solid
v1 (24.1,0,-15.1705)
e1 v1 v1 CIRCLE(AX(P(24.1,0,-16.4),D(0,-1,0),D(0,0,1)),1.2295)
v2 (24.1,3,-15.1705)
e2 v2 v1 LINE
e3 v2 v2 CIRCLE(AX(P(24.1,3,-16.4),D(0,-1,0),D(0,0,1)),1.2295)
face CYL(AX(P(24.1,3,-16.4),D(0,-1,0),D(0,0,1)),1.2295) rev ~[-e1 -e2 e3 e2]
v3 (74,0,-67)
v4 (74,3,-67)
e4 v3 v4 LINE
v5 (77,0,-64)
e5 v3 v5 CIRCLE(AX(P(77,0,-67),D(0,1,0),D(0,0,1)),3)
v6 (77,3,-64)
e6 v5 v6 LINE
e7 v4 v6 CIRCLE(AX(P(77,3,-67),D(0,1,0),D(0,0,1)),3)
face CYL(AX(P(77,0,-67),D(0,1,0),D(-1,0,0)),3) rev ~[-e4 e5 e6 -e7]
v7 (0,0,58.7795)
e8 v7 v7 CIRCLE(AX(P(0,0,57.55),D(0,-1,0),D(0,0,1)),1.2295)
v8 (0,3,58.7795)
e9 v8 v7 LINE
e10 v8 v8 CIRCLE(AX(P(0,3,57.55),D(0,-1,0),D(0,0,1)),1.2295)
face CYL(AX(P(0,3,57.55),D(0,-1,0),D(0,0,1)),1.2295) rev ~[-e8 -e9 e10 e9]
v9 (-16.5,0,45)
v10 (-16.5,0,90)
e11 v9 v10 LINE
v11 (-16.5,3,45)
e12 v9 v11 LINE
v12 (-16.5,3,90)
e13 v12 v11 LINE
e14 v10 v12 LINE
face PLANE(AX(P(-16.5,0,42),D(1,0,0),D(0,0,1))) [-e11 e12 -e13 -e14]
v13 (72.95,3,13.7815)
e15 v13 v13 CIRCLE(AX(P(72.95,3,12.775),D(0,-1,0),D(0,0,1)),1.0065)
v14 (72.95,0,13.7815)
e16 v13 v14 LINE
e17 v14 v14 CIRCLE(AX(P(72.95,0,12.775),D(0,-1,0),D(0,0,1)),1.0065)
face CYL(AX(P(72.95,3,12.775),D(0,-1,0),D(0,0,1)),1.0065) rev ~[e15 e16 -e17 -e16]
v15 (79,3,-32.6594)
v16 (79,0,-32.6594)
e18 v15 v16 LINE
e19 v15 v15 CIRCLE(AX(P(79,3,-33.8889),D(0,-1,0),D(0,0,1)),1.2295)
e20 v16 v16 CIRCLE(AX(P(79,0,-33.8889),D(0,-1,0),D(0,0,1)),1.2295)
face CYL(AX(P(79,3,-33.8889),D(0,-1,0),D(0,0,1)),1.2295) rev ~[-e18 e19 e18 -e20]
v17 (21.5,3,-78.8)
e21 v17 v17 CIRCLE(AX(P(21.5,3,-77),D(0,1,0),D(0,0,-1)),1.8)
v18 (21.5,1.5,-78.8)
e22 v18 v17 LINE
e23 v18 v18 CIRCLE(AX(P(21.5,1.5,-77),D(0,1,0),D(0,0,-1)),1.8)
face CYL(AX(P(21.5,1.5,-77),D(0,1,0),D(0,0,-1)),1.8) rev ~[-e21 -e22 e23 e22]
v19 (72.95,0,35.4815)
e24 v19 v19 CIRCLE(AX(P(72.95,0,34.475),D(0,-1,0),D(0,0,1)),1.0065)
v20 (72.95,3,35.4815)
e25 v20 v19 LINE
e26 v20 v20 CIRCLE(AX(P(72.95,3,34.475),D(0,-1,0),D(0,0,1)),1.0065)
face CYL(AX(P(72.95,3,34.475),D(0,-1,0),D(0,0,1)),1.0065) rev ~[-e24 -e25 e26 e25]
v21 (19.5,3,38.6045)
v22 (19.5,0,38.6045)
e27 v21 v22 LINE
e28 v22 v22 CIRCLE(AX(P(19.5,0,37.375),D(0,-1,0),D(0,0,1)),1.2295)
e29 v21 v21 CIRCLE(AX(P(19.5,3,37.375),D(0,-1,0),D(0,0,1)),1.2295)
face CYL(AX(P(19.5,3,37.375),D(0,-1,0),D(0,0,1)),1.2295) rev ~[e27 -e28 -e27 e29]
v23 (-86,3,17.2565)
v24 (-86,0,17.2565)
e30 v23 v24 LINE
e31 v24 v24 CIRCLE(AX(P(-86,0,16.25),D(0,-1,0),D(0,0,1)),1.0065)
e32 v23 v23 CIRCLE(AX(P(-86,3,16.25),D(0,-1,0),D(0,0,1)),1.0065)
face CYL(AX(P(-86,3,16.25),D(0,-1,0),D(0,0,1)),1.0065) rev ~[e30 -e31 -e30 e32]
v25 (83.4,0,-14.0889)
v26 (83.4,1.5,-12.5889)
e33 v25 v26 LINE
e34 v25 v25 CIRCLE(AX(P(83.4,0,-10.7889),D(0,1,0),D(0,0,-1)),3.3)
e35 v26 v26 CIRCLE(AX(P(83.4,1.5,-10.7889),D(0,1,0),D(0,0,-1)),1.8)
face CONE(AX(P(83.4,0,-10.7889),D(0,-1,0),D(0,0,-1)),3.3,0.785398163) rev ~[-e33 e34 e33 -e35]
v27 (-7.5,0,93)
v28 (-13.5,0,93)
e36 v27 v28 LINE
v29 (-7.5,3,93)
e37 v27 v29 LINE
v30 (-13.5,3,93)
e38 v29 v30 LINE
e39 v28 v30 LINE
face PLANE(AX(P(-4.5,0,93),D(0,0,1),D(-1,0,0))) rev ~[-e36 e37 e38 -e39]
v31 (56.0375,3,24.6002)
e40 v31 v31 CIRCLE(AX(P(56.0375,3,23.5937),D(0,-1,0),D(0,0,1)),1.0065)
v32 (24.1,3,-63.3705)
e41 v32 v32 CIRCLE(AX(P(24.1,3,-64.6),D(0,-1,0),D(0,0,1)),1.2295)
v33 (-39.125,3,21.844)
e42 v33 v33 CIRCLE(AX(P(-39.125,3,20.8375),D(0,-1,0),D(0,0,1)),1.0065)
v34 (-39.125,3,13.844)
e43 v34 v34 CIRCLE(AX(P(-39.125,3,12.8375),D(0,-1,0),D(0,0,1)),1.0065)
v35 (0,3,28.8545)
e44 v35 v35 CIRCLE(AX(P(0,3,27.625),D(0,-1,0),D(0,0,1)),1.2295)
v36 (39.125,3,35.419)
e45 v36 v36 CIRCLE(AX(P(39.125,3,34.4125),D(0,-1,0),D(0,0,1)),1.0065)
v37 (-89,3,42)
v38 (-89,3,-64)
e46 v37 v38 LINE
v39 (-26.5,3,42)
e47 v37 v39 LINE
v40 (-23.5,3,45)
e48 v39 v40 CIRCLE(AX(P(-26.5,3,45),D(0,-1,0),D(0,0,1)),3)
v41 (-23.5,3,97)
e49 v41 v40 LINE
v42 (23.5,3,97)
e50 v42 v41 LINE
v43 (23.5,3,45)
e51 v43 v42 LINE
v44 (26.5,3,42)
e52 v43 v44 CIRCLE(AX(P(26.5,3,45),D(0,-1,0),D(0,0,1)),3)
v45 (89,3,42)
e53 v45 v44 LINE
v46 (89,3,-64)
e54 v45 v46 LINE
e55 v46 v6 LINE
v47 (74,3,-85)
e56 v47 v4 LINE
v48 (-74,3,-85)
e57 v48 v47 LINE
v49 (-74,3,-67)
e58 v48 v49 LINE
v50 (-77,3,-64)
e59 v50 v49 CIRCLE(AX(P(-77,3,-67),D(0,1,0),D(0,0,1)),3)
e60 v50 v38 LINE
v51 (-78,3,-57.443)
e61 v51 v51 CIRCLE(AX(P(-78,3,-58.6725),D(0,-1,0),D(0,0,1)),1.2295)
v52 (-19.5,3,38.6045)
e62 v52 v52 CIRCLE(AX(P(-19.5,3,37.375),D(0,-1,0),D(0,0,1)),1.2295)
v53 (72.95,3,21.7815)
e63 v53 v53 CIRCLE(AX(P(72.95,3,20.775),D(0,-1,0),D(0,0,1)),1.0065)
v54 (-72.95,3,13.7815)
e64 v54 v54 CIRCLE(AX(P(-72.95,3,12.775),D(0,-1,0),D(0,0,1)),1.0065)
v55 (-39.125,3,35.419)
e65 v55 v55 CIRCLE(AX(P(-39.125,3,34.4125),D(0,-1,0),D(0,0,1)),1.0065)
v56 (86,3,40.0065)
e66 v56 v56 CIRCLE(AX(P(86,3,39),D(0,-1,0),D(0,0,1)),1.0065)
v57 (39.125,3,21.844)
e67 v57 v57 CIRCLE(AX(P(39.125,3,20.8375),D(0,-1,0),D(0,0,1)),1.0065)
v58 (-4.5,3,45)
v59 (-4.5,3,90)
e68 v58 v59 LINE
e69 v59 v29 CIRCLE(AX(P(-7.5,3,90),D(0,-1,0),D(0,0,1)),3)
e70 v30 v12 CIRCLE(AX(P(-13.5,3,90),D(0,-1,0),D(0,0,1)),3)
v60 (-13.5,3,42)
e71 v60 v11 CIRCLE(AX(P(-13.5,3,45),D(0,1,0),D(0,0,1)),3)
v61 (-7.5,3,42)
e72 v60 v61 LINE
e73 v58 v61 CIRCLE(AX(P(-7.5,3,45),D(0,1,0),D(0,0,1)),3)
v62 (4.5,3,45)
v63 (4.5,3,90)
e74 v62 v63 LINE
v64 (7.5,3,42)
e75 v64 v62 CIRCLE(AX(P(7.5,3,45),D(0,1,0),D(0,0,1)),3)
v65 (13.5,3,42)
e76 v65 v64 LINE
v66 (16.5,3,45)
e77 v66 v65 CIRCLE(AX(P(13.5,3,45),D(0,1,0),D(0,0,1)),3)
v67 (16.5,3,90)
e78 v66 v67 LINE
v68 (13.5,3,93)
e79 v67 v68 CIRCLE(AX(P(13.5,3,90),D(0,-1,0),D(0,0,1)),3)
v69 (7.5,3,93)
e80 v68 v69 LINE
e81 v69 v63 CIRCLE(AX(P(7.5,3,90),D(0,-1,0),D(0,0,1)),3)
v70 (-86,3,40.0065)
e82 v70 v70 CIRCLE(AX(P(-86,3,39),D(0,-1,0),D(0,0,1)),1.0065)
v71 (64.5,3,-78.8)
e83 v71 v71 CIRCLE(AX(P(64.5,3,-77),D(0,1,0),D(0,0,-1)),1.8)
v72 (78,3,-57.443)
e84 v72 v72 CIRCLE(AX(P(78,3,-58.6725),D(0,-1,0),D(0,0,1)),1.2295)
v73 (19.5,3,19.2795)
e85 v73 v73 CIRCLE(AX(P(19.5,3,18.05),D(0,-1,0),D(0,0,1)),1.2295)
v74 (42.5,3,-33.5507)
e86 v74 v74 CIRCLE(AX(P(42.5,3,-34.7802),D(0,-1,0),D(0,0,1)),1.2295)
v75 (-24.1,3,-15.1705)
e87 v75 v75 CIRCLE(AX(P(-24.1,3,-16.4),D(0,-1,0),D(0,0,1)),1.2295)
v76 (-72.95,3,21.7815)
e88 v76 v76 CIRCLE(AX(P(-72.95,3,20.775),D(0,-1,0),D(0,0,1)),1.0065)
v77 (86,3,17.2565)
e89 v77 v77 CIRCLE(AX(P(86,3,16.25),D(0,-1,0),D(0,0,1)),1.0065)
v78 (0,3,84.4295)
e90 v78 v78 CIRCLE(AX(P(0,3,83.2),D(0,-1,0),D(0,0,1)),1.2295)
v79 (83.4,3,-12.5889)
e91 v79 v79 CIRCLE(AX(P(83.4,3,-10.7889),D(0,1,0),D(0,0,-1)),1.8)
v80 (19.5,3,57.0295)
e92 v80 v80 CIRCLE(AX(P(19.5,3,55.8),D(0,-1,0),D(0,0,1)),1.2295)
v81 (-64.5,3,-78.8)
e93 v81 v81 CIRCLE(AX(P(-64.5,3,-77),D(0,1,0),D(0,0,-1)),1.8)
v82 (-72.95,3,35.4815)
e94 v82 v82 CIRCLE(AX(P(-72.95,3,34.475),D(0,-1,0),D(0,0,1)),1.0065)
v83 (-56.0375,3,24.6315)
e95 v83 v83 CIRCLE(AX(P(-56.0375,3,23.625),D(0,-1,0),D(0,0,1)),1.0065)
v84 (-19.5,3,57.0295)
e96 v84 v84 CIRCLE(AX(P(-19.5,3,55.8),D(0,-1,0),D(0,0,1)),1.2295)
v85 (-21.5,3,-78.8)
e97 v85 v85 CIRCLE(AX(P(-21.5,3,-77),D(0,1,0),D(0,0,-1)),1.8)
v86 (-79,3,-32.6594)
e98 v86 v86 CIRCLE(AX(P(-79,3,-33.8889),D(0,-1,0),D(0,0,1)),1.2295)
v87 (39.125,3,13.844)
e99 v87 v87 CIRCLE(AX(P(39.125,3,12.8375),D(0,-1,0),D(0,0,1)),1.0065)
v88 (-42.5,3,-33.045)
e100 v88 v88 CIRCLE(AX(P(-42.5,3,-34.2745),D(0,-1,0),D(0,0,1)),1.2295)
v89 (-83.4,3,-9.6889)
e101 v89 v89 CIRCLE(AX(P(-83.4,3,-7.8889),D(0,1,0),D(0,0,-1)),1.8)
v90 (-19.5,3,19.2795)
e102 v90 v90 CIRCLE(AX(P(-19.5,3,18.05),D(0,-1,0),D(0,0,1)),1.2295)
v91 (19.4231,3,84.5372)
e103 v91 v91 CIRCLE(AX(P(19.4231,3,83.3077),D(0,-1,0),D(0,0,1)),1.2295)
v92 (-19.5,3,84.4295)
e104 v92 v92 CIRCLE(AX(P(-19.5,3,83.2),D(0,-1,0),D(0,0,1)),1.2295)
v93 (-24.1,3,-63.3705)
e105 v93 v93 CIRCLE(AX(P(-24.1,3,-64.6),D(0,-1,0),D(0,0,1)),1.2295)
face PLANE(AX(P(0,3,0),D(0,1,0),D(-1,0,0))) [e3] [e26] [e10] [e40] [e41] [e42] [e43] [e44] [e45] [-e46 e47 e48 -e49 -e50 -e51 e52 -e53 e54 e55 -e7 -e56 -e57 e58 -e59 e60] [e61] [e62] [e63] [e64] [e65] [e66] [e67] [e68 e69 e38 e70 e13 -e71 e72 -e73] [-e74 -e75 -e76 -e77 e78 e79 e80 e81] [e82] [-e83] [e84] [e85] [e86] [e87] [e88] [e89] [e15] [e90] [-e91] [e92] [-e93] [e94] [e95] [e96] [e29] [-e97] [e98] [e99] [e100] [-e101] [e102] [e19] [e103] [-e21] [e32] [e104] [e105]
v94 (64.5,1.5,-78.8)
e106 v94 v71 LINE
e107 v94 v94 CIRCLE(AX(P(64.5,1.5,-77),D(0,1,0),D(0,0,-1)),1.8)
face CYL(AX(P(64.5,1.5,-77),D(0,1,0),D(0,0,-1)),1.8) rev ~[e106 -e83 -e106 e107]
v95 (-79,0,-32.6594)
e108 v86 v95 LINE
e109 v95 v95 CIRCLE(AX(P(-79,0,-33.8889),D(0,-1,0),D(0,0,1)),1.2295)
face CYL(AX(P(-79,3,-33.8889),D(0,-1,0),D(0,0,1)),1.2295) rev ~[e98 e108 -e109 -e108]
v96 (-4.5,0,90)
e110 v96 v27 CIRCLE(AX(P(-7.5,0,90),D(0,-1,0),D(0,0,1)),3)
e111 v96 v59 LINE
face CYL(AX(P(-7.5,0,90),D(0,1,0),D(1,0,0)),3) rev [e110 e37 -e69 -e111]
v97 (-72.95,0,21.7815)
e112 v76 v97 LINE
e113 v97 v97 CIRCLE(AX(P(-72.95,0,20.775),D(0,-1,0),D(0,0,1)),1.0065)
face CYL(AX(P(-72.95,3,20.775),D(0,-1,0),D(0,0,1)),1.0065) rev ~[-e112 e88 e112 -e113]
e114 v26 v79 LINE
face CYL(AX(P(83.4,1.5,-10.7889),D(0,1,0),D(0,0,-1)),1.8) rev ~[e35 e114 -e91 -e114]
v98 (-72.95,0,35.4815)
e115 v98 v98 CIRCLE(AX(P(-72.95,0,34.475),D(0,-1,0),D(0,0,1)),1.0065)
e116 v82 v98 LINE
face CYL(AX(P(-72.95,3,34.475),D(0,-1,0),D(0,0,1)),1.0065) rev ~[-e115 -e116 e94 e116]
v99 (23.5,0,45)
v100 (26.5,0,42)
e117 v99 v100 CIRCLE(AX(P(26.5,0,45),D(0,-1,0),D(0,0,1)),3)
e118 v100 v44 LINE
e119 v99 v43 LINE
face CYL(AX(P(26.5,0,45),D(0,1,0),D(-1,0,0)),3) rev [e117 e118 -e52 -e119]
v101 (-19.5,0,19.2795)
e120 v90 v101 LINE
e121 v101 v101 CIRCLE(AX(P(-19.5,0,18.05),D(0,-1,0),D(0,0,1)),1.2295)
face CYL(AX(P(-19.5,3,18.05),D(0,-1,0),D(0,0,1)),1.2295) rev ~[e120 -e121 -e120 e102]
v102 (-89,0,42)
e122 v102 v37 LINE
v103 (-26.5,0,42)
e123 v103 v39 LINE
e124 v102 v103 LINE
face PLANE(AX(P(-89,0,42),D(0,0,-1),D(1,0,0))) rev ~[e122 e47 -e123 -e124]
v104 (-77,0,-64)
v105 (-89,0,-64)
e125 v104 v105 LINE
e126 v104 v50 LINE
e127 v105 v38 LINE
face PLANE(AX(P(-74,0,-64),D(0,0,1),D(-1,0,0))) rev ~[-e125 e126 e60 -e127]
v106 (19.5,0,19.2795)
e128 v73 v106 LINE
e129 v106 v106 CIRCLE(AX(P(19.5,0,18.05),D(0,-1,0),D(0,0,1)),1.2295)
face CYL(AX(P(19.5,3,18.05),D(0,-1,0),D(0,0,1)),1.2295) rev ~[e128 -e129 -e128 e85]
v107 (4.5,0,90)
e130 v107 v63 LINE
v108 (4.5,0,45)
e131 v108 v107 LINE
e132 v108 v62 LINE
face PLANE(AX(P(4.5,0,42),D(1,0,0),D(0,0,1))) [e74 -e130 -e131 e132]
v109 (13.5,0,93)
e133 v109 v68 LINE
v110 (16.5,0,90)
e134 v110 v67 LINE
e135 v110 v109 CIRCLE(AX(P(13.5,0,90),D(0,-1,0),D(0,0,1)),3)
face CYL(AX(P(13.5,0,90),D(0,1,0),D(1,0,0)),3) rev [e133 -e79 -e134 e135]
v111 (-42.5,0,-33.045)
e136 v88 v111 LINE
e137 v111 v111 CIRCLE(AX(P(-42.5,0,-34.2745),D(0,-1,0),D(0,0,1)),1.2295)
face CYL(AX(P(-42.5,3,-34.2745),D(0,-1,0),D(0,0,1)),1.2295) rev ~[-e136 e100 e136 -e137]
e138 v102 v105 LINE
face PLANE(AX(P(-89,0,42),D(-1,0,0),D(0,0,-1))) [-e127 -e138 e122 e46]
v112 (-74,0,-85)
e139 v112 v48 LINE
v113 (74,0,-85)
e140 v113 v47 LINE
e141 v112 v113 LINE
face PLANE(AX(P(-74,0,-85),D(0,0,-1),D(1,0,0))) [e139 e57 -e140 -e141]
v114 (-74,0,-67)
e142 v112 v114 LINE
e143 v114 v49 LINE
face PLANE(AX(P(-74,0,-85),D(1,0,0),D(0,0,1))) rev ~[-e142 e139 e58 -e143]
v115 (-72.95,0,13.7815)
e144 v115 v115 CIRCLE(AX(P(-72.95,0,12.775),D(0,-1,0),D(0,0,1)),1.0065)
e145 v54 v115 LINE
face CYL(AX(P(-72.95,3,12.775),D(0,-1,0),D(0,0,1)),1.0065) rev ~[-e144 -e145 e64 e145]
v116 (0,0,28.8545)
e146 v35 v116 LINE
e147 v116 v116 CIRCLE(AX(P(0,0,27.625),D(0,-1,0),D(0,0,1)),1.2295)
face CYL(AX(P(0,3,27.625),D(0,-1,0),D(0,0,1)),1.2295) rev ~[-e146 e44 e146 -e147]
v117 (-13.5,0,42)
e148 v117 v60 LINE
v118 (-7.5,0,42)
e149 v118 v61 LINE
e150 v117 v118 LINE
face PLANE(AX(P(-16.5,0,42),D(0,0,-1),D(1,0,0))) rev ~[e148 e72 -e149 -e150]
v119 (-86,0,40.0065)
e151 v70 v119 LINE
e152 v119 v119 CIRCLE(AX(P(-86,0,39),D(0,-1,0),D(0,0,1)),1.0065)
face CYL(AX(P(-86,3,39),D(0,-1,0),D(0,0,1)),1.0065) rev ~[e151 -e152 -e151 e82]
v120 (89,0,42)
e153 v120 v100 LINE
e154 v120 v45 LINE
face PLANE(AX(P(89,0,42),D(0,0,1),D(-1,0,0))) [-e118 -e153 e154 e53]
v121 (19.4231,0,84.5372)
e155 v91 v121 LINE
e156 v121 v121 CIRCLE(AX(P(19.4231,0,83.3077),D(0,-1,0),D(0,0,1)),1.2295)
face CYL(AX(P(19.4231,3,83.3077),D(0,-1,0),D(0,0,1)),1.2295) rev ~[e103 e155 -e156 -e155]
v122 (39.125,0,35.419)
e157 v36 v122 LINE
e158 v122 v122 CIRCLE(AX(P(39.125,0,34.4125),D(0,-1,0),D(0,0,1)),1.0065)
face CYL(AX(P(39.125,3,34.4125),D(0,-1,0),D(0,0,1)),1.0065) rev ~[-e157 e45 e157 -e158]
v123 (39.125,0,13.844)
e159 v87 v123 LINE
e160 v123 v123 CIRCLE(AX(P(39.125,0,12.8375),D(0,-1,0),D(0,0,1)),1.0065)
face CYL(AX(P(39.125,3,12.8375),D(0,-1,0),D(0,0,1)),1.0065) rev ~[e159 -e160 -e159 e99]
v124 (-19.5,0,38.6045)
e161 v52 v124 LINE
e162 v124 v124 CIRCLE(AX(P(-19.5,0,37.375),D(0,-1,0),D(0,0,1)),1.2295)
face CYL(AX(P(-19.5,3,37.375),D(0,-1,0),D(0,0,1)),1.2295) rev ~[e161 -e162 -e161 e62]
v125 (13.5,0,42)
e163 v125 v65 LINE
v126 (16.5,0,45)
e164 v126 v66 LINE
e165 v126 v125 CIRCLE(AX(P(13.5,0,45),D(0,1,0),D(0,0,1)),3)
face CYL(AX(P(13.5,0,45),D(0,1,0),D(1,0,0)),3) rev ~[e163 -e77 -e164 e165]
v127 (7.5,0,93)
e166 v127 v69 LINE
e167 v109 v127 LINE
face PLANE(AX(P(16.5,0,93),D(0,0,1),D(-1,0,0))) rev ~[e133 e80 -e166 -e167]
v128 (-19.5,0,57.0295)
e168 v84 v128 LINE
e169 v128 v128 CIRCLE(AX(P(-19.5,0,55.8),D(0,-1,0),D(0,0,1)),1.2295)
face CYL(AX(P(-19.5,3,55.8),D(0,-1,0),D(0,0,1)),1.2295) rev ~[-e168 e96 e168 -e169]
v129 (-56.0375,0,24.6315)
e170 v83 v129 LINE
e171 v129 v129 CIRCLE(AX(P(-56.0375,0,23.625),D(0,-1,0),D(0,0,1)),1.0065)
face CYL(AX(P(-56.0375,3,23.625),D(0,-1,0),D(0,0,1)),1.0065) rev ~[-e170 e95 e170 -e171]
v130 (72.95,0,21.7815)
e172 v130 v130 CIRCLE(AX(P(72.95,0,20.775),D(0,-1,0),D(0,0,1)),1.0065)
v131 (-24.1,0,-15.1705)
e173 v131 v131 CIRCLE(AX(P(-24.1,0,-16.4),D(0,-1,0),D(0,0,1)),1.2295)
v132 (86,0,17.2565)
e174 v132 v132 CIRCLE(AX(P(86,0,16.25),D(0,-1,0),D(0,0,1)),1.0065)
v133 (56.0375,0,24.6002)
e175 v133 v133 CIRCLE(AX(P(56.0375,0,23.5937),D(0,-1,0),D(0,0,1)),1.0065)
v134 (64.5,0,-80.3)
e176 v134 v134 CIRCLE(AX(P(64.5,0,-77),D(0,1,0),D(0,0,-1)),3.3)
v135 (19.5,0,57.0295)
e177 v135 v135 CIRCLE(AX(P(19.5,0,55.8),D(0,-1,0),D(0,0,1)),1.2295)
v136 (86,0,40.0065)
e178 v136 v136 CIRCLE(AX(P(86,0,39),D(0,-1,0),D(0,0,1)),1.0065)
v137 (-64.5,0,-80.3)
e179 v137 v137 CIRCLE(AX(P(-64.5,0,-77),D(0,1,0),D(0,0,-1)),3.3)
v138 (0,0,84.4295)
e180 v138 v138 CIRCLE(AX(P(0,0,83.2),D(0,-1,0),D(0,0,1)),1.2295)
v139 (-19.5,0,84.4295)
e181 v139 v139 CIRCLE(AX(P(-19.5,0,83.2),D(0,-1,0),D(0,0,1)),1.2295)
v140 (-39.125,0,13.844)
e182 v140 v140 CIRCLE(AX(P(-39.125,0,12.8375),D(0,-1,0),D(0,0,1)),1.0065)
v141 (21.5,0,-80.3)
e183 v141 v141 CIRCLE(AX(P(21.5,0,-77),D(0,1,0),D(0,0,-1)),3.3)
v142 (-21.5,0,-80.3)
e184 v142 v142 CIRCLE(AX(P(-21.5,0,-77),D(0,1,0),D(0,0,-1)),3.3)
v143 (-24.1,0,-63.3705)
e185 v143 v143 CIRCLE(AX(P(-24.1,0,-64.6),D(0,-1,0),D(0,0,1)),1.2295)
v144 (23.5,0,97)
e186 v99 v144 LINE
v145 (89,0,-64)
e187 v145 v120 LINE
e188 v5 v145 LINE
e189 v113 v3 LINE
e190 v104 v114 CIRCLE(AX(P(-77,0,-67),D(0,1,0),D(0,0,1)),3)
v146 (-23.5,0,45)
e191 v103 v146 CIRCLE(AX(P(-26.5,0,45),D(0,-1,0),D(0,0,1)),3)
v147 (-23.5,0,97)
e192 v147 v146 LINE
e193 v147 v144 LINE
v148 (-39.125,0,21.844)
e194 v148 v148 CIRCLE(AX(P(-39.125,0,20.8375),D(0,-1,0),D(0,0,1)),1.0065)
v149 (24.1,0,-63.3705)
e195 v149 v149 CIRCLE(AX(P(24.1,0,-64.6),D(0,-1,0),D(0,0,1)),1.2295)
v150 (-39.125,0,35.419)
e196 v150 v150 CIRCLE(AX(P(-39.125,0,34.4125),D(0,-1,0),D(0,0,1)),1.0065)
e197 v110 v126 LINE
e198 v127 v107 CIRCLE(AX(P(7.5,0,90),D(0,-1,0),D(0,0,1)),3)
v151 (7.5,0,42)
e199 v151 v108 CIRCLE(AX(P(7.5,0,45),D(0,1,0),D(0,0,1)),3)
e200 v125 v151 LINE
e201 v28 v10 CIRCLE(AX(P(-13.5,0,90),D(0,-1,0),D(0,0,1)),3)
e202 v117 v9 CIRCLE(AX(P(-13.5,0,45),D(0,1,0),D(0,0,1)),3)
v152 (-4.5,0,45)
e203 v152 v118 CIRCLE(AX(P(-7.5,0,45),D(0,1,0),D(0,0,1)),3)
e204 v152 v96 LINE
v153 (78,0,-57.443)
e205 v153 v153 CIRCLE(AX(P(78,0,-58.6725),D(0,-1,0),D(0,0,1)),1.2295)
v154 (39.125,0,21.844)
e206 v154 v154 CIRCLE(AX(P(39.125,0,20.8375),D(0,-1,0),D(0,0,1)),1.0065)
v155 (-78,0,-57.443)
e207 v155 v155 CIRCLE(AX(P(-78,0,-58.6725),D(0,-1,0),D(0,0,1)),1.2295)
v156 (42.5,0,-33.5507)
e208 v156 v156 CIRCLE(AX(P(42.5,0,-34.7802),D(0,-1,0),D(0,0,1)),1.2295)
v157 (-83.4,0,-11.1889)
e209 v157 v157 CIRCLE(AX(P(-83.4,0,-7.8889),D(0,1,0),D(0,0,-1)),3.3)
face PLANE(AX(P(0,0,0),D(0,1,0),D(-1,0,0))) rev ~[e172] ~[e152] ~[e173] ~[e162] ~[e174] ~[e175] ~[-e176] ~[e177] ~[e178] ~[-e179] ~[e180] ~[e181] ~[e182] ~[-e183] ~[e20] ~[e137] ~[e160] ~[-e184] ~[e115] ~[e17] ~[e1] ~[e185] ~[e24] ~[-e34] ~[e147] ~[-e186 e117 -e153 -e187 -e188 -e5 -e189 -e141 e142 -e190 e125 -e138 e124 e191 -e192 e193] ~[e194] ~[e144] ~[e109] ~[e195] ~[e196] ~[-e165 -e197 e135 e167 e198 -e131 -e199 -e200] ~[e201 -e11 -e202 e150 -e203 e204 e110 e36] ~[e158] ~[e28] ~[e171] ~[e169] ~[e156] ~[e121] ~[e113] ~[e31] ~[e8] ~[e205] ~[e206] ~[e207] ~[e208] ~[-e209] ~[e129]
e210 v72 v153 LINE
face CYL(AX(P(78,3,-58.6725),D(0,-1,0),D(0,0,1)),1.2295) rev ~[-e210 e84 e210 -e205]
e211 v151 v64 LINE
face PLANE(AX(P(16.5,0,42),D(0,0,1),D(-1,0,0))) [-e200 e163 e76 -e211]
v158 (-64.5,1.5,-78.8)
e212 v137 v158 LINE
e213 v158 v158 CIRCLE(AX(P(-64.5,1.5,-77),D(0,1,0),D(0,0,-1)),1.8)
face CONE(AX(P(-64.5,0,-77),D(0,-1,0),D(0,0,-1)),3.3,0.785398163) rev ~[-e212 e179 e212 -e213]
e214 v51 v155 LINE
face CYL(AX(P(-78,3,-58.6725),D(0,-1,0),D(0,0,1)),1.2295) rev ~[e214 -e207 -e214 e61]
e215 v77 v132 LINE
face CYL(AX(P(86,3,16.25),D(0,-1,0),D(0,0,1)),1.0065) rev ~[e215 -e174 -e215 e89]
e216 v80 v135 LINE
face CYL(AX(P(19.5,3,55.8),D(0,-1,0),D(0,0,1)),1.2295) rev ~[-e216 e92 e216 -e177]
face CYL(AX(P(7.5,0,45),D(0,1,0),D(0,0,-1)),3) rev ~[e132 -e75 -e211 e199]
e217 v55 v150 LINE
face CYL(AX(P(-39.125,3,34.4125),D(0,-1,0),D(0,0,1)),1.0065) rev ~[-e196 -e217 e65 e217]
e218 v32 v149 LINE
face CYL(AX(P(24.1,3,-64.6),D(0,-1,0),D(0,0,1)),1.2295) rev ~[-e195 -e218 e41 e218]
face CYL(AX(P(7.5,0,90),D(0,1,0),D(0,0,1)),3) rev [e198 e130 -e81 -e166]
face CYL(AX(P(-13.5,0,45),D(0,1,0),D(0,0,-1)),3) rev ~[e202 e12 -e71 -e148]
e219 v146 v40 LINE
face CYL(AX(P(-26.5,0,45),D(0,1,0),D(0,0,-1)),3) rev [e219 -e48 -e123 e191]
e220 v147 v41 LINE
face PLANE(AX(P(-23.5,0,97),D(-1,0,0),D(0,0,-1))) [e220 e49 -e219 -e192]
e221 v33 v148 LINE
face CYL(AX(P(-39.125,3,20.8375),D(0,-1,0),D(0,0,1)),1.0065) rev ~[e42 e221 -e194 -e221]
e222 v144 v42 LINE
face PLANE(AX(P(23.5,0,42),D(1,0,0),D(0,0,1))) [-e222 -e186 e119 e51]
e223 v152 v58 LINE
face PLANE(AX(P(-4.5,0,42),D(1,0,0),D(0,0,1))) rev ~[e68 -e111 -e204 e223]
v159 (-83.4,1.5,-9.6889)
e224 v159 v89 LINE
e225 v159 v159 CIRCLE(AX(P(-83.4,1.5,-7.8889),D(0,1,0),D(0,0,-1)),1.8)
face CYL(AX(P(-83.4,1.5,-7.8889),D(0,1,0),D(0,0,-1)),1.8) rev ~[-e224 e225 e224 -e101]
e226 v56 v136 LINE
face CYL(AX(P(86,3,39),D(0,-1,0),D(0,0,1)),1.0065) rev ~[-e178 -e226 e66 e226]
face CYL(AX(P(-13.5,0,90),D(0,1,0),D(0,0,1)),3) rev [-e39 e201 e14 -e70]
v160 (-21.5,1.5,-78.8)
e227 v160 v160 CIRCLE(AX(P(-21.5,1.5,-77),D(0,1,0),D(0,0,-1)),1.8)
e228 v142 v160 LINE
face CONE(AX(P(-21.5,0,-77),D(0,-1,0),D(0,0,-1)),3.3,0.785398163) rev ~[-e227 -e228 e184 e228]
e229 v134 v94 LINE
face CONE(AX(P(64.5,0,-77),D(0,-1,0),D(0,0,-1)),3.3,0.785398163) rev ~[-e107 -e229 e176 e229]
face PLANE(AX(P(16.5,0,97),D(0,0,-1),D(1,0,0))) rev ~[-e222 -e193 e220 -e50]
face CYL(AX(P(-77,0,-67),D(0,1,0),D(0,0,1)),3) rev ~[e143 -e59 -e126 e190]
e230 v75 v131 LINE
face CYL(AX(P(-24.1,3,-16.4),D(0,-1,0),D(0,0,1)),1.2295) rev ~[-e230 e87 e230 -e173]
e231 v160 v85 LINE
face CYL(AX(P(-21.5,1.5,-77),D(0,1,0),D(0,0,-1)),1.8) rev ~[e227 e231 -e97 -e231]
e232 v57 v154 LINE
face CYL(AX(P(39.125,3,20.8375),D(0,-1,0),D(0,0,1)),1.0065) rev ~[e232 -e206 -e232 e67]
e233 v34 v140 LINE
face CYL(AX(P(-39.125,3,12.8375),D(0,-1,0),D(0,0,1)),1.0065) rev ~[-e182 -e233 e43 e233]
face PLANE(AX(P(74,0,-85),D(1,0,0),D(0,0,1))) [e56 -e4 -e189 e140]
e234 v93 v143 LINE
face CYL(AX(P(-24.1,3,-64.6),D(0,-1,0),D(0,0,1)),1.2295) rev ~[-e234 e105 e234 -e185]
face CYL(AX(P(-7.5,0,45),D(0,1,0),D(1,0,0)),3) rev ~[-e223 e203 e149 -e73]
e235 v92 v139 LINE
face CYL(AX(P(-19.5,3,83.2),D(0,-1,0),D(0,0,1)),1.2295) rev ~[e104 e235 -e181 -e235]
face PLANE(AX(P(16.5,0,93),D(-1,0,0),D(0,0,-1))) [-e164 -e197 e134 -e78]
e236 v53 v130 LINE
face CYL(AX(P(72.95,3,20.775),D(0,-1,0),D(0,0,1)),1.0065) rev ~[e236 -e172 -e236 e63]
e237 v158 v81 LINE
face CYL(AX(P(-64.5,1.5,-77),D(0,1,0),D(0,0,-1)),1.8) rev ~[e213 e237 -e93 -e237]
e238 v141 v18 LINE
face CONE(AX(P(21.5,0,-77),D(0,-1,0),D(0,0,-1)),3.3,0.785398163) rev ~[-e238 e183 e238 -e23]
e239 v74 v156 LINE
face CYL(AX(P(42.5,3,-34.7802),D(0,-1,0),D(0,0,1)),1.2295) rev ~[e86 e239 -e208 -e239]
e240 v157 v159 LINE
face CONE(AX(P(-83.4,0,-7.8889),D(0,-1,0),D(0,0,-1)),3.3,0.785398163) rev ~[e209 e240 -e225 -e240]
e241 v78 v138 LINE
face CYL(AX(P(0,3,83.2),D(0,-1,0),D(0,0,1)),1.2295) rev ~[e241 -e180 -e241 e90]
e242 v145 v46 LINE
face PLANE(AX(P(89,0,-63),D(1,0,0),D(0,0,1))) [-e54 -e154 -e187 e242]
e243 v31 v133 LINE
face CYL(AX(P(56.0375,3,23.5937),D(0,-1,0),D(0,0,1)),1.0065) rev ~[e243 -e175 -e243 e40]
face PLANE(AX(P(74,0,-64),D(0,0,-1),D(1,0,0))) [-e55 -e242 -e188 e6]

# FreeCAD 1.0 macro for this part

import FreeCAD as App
import Part
import Sketcher

V = App.Vector
Q = App.Units.Quantity


def edges_at(feature, points):
    """Names of the edges that pass closest to the given points."""
    edges = feature.Shape.Edges
    near = lambda p: min(range(len(edges)), key=lambda i: edges[i].distToShape(Part.Vertex(*p))[0])
    return sorted({f"Edge{near(p) + 1}" for p in points})


def add_polygon(sketch, points):
    """Adds a closed chain of lines whose ends are joined by coincident constraints."""
    first, n = sketch.GeometryCount, len(points)
    for a, b in zip(points, points[1:] + points[:1]):
        sketch.addGeometry(Part.LineSegment(App.Vector(*a, 0), App.Vector(*b, 0)), False)
    for i in range(n):
        sketch.addConstraint(Sketcher.Constraint("Coincident", first + i, 2, first + (i + 1) % n, 1))

doc = App.newDocument("Part")
body = doc.addObject("PartDesign::Body", "Body")

sketch1 = body.newObject("Sketcher::SketchObject", "Sketch")
sketch1.AttachmentSupport = (doc.getObject("XZ_Plane"), [""])
sketch1.MapMode = "FlatFace"
add_polygon(sketch1, [(23.5, 97), (23.5, 42), (89, 42), (89, -64), (74, -64), (74, -85), (-74, -85), (-74, -64), (-89, -64), (-89, 42), (-23.5, 42), (-23.5, 97)])
add_polygon(sketch1, [(16.5, 93), (4.5, 93), (4.5, 42), (16.5, 42)])
add_polygon(sketch1, [(-4.5, 42), (-4.5, 93), (-16.5, 93), (-16.5, 42)])
sketch1.addConstraint(Sketcher.Constraint("Vertical", 0))
sketch1.addConstraint(Sketcher.Constraint("Horizontal", 1))
sketch1.addConstraint(Sketcher.Constraint("Vertical", 2))
sketch1.addConstraint(Sketcher.Constraint("Horizontal", 3))
sketch1.addConstraint(Sketcher.Constraint("Vertical", 4))
sketch1.addConstraint(Sketcher.Constraint("Horizontal", 5))
sketch1.addConstraint(Sketcher.Constraint("Vertical", 6))
sketch1.addConstraint(Sketcher.Constraint("Horizontal", 7))
sketch1.addConstraint(Sketcher.Constraint("Vertical", 8))
sketch1.addConstraint(Sketcher.Constraint("Horizontal", 9))
sketch1.addConstraint(Sketcher.Constraint("Vertical", 10))
sketch1.addConstraint(Sketcher.Constraint("Horizontal", 11))
sketch1.addConstraint(Sketcher.Constraint("Horizontal", 12))
sketch1.addConstraint(Sketcher.Constraint("Vertical", 13))
sketch1.addConstraint(Sketcher.Constraint("Horizontal", 14))
sketch1.addConstraint(Sketcher.Constraint("Vertical", 15))
sketch1.addConstraint(Sketcher.Constraint("Vertical", 16))
sketch1.addConstraint(Sketcher.Constraint("Horizontal", 17))
sketch1.addConstraint(Sketcher.Constraint("Vertical", 18))
sketch1.addConstraint(Sketcher.Constraint("Horizontal", 19))
sketch1.addConstraint(Sketcher.Constraint("Symmetric", 3, 2, 6, 2, -2))
sketch1.addConstraint(Sketcher.Constraint("Symmetric", 1, 2, 8, 2, -2))
sketch1.addConstraint(Sketcher.Constraint("Symmetric", 12, 2, 16, 2, -2))
sketch1.addConstraint(Sketcher.Constraint("Symmetric", 14, 2, 18, 2, -2))
sketch1.addConstraint(Sketcher.Constraint("Horizontal", 9, 2, 13, 2))
sketch1.addConstraint(Sketcher.Constraint("Equal", 1, 9))
sketch1.addConstraint(Sketcher.Constraint("DistanceX", 3, 2, 3, 1, Q("15 mm")))
sketch1.addConstraint(Sketcher.Constraint("DistanceY", 0, 2, 0, 1, Q("55 mm")))
sketch1.addConstraint(Sketcher.Constraint("DistanceY", 4, 2, 4, 1, Q("21 mm")))
sketch1.addConstraint(Sketcher.Constraint("DistanceX", 8, 2, 1, 2, Q("178 mm")))
sketch1.addConstraint(Sketcher.Constraint("DistanceY", 12, 2, 11, 2, Q("4 mm")))
sketch1.addConstraint(Sketcher.Constraint("DistanceX", 14, 2, 0, 2, Q("7 mm")))
sketch1.addConstraint(Sketcher.Constraint("DistanceX", 16, 2, 12, 2, Q("9 mm")))
sketch1.addConstraint(Sketcher.Constraint("DistanceX", 16, 2, 15, 2, Q("21 mm")))
sketch1.addConstraint(Sketcher.Constraint("DistanceY", 2, 2, 2, 1, Q("106 mm")))
sketch1.addConstraint(Sketcher.Constraint("DistanceY", -1, 1, 0, 2, Q("42 mm")))
pad1 = body.newObject("PartDesign::Pad", "Pad")
pad1.Profile = sketch1
pad1.Length = 3
pad1.Reversed = True
doc.recompute()

fillet = body.newObject("PartDesign::Fillet", "Fillet")
fillet.Base = (pad1, edges_at(pad1, [
    (-16.5, 1.5, 42),
    (-4.5, 1.5, 42),
    (-23.5, 1.5, 42),
    (16.5, 1.5, 42),
    (-16.5, 1.5, 93),
    (-4.5, 1.5, 93),
    (4.5, 1.5, 93),
    (16.5, 1.5, 93),
    (4.5, 1.5, 42),
    (23.5, 1.5, 42),
    (74, 1.5, -64),
    (-74, 1.5, -64),
]))
fillet.Radius = 3

sketch2 = body.newObject("Sketcher::SketchObject", "Sketch001")
sketch2.AttachmentSupport = (doc.getObject("XZ_Plane"), [""])
sketch2.MapMode = "FlatFace"
sketch2.AttachmentOffset = App.Placement(V(0, 0, -3), App.Rotation())
sketch2.addGeometry(Part.Circle(V(19.4231, 83.3077, 0), V(0, 0, 1), 1.2295), False)
sketch2.addGeometry(Part.Circle(V(0, 83.2, 0), V(0, 0, 1), 1.2295), False)
sketch2.addGeometry(Part.Circle(V(-19.5, 83.2, 0), V(0, 0, 1), 1.2295), False)
sketch2.addGeometry(Part.Circle(V(19.5, 55.8, 0), V(0, 0, 1), 1.2295), False)
sketch2.addGeometry(Part.Circle(V(0, 57.55, 0), V(0, 0, 1), 1.2295), False)
sketch2.addGeometry(Part.Circle(V(-19.5, 55.8, 0), V(0, 0, 1), 1.2295), False)
sketch2.addGeometry(Part.Circle(V(-19.5, 37.375, 0), V(0, 0, 1), 1.2295), False)
sketch2.addGeometry(Part.Circle(V(-19.5, 18.05, 0), V(0, 0, 1), 1.2295), False)
sketch2.addGeometry(Part.Circle(V(0, 27.625, 0), V(0, 0, 1), 1.2295), False)
sketch2.addGeometry(Part.Circle(V(19.5, 37.375, 0), V(0, 0, 1), 1.2295), False)
sketch2.addGeometry(Part.Circle(V(19.5, 18.05, 0), V(0, 0, 1), 1.2295), False)
sketch2.addGeometry(Part.Circle(V(79, -33.8889, 0), V(0, 0, 1), 1.2295), False)
sketch2.addGeometry(Part.Circle(V(78, -58.6725, 0), V(0, 0, 1), 1.2295), False)
sketch2.addGeometry(Part.Circle(V(42.5, -34.7802, 0), V(0, 0, 1), 1.2295), False)
sketch2.addGeometry(Part.Circle(V(24.1, -16.4, 0), V(0, 0, 1), 1.2295), False)
sketch2.addGeometry(Part.Circle(V(-24.1, -16.4, 0), V(0, 0, 1), 1.2295), False)
sketch2.addGeometry(Part.Circle(V(-24.1, -64.6, 0), V(0, 0, 1), 1.2295), False)
sketch2.addGeometry(Part.Circle(V(24.1, -64.6, 0), V(0, 0, 1), 1.2295), False)
sketch2.addGeometry(Part.Circle(V(-42.5, -34.2745, 0), V(0, 0, 1), 1.2295), False)
sketch2.addGeometry(Part.Circle(V(-78, -58.6725, 0), V(0, 0, 1), 1.2295), False)
sketch2.addGeometry(Part.Circle(V(-79, -33.8889, 0), V(0, 0, 1), 1.2295), False)
sketch2.addConstraint(Sketcher.Constraint("Equal", 0, 1))
sketch2.addConstraint(Sketcher.Constraint("Equal", 1, 2))
sketch2.addConstraint(Sketcher.Constraint("Equal", 2, 3))
sketch2.addConstraint(Sketcher.Constraint("Equal", 3, 4))
sketch2.addConstraint(Sketcher.Constraint("Equal", 4, 5))
sketch2.addConstraint(Sketcher.Constraint("Equal", 5, 6))
sketch2.addConstraint(Sketcher.Constraint("Equal", 6, 7))
sketch2.addConstraint(Sketcher.Constraint("Equal", 7, 8))
sketch2.addConstraint(Sketcher.Constraint("Equal", 8, 9))
sketch2.addConstraint(Sketcher.Constraint("Equal", 9, 10))
sketch2.addConstraint(Sketcher.Constraint("Equal", 10, 11))
sketch2.addConstraint(Sketcher.Constraint("Equal", 11, 12))
sketch2.addConstraint(Sketcher.Constraint("Equal", 12, 13))
sketch2.addConstraint(Sketcher.Constraint("Equal", 13, 14))
sketch2.addConstraint(Sketcher.Constraint("Equal", 14, 15))
sketch2.addConstraint(Sketcher.Constraint("Equal", 15, 16))
sketch2.addConstraint(Sketcher.Constraint("Equal", 16, 17))
sketch2.addConstraint(Sketcher.Constraint("Equal", 17, 18))
sketch2.addConstraint(Sketcher.Constraint("Equal", 18, 19))
sketch2.addConstraint(Sketcher.Constraint("Equal", 19, 20))
sketch2.addConstraint(Sketcher.Constraint("Symmetric", 3, 3, 5, 3, -2))
sketch2.addConstraint(Sketcher.Constraint("Symmetric", 6, 3, 9, 3, -2))
sketch2.addConstraint(Sketcher.Constraint("Symmetric", 7, 3, 10, 3, -2))
sketch2.addConstraint(Sketcher.Constraint("Symmetric", 14, 3, 15, 3, -2))
sketch2.addConstraint(Sketcher.Constraint("Symmetric", 16, 3, 17, 3, -2))
sketch2.addConstraint(Sketcher.Constraint("Symmetric", 12, 3, 19, 3, -2))
sketch2.addConstraint(Sketcher.Constraint("Symmetric", 11, 3, 20, 3, -2))
sketch2.addConstraint(Sketcher.Constraint("PointOnObject", 1, 3, -2))
sketch2.addConstraint(Sketcher.Constraint("PointOnObject", 4, 3, -2))
sketch2.addConstraint(Sketcher.Constraint("PointOnObject", 8, 3, -2))
sketch2.addConstraint(Sketcher.Constraint("Horizontal", 1, 3, 2, 3))
sketch2.addConstraint(Sketcher.Constraint("Vertical", 2, 3, 5, 3))
sketch2.addConstraint(Sketcher.Constraint("Vertical", 5, 3, 6, 3))
sketch2.addConstraint(Sketcher.Constraint("Vertical", 6, 3, 7, 3))
sketch2.addConstraint(Sketcher.Constraint("Vertical", 15, 3, 16, 3))
sketch2.addConstraint(Sketcher.Constraint("Diameter", 0, Q("2.459 mm")))
sketch2.addConstraint(Sketcher.Constraint("DistanceX", -1, 1, 11, 3, Q("79 mm")))
sketch2.addConstraint(Sketcher.Constraint("DistanceX", -1, 1, 12, 3, Q("78 mm")))
sketch2.addConstraint(Sketcher.Constraint("DistanceX", 2, 3, 3, 3, Q("39 mm")))
sketch2.addConstraint(Sketcher.Constraint("DistanceX", 10, 3, 13, 3, Q("23 mm")))
sketch2.addConstraint(Sketcher.Constraint("DistanceX", 18, 3, 7, 3, Q("23 mm")))
sketch2.addConstraint(Sketcher.Constraint("DistanceY", -1, 1, 1, 3, Q("83.2 mm")))
sketch2.addConstraint(Sketcher.Constraint("DistanceY", -1, 1, 3, 3, Q("55.8 mm")))
sketch2.addConstraint(Sketcher.Constraint("DistanceX", -1, 1, 14, 3, Q("24.1 mm")))
sketch2.addConstraint(Sketcher.Constraint("DistanceY", 14, 3, -1, 1, Q("16.4 mm")))
sketch2.addConstraint(Sketcher.Constraint("DistanceY", 16, 3, -1, 1, Q("64.6 mm")))
sketch2.addConstraint(Sketcher.Constraint("DistanceY", 7, 3, 4, 3, Q("39.5 mm")))
sketch2.addConstraint(Sketcher.Constraint("DistanceY", -1, 1, 4, 3, Q("57.55 mm")))
sketch2.addConstraint(Sketcher.Constraint("DistanceY", 8, 3, 6, 3, Q("9.75 mm")))
sketch2.addConstraint(Sketcher.Constraint("DistanceX", -1, 1, 0, 3, Q("19.423 mm")))
sketch2.addConstraint(Sketcher.Constraint("DistanceY", -1, 1, 6, 3, Q("37.375 mm")))
sketch2.addConstraint(Sketcher.Constraint("DistanceY", 11, 3, -1, 1, Q("33.889 mm")))
sketch2.addConstraint(Sketcher.Constraint("DistanceY", 19, 3, 18, 3, Q("24.398 mm")))
sketch2.addConstraint(Sketcher.Constraint("DistanceY", -1, 1, 0, 3, Q("83.3077 mm")))
sketch2.addConstraint(Sketcher.Constraint("DistanceY", 12, 3, -1, 1, Q("58.6725 mm")))
sketch2.addConstraint(Sketcher.Constraint("DistanceY", 13, 3, -1, 1, Q("34.7802 mm")))
doc.recompute()
hole = body.newObject("PartDesign::Hole", "Hole")
hole.Profile = sketch2
hole.ThreadType = "None"
hole.Diameter = 2.459
hole.DepthType = "ThroughAll"
hole.Reversed = True

sketch3 = body.newObject("Sketcher::SketchObject", "Sketch002")
sketch3.AttachmentSupport = (doc.getObject("XZ_Plane"), [""])
sketch3.MapMode = "FlatFace"
sketch3.AttachmentOffset = App.Placement(V(0, 0, -3), App.Rotation())
sketch3.addGeometry(Part.Circle(V(72.95, 34.475, 0), V(0, 0, 1), 1.0065), False)
sketch3.addGeometry(Part.Circle(V(72.95, 20.775, 0), V(0, 0, 1), 1.0065), False)
sketch3.addGeometry(Part.Circle(V(39.125, 20.8375, 0), V(0, 0, 1), 1.0065), False)
sketch3.addGeometry(Part.Circle(V(39.125, 34.4125, 0), V(0, 0, 1), 1.0065), False)
sketch3.addGeometry(Part.Circle(V(86, 39, 0), V(0, 0, 1), 1.0065), False)
sketch3.addGeometry(Part.Circle(V(86, 16.25, 0), V(0, 0, 1), 1.0065), False)
sketch3.addGeometry(Part.Circle(V(-86, 39, 0), V(0, 0, 1), 1.0065), False)
sketch3.addGeometry(Part.Circle(V(-86, 16.25, 0), V(0, 0, 1), 1.0065), False)
sketch3.addGeometry(Part.Circle(V(-72.95, 20.775, 0), V(0, 0, 1), 1.0065), False)
sketch3.addGeometry(Part.Circle(V(-72.95, 34.475, 0), V(0, 0, 1), 1.0065), False)
sketch3.addGeometry(Part.Circle(V(-39.125, 34.4125, 0), V(0, 0, 1), 1.0065), False)
sketch3.addGeometry(Part.Circle(V(-39.125, 20.8375, 0), V(0, 0, 1), 1.0065), False)
sketch3.addGeometry(Part.Circle(V(72.95, 12.775, 0), V(0, 0, 1), 1.0065), False)
sketch3.addGeometry(Part.Circle(V(39.125, 12.8375, 0), V(0, 0, 1), 1.0065), False)
sketch3.addGeometry(Part.Circle(V(-39.125, 12.8375, 0), V(0, 0, 1), 1.0065), False)
sketch3.addGeometry(Part.Circle(V(-72.95, 12.775, 0), V(0, 0, 1), 1.0065), False)
sketch3.addGeometry(Part.Circle(V(56.0375, 23.5937, 0), V(0, 0, 1), 1.0065), False)
sketch3.addGeometry(Part.Circle(V(-56.0375, 23.625, 0), V(0, 0, 1), 1.0065), False)
sketch3.addConstraint(Sketcher.Constraint("Equal", 0, 1))
sketch3.addConstraint(Sketcher.Constraint("Equal", 1, 2))
sketch3.addConstraint(Sketcher.Constraint("Equal", 2, 3))
sketch3.addConstraint(Sketcher.Constraint("Equal", 3, 4))
sketch3.addConstraint(Sketcher.Constraint("Equal", 4, 5))
sketch3.addConstraint(Sketcher.Constraint("Equal", 5, 6))
sketch3.addConstraint(Sketcher.Constraint("Equal", 6, 7))
sketch3.addConstraint(Sketcher.Constraint("Equal", 7, 8))
sketch3.addConstraint(Sketcher.Constraint("Equal", 8, 9))
sketch3.addConstraint(Sketcher.Constraint("Equal", 9, 10))
sketch3.addConstraint(Sketcher.Constraint("Equal", 10, 11))
sketch3.addConstraint(Sketcher.Constraint("Equal", 11, 12))
sketch3.addConstraint(Sketcher.Constraint("Equal", 12, 13))
sketch3.addConstraint(Sketcher.Constraint("Equal", 13, 14))
sketch3.addConstraint(Sketcher.Constraint("Equal", 14, 15))
sketch3.addConstraint(Sketcher.Constraint("Equal", 15, 16))
sketch3.addConstraint(Sketcher.Constraint("Equal", 16, 17))
sketch3.addConstraint(Sketcher.Constraint("Symmetric", 4, 3, 6, 3, -2))
sketch3.addConstraint(Sketcher.Constraint("Symmetric", 5, 3, 7, 3, -2))
sketch3.addConstraint(Sketcher.Constraint("Symmetric", 1, 3, 8, 3, -2))
sketch3.addConstraint(Sketcher.Constraint("Symmetric", 0, 3, 9, 3, -2))
sketch3.addConstraint(Sketcher.Constraint("Symmetric", 3, 3, 10, 3, -2))
sketch3.addConstraint(Sketcher.Constraint("Symmetric", 2, 3, 11, 3, -2))
sketch3.addConstraint(Sketcher.Constraint("Symmetric", 13, 3, 14, 3, -2))
sketch3.addConstraint(Sketcher.Constraint("Symmetric", 12, 3, 15, 3, -2))
sketch3.addConstraint(Sketcher.Constraint("Vertical", 0, 3, 1, 3))
sketch3.addConstraint(Sketcher.Constraint("Vertical", 2, 3, 3, 3))
sketch3.addConstraint(Sketcher.Constraint("Vertical", 4, 3, 5, 3))
sketch3.addConstraint(Sketcher.Constraint("Vertical", 1, 3, 12, 3))
sketch3.addConstraint(Sketcher.Constraint("Vertical", 3, 3, 13, 3))
sketch3.addConstraint(Sketcher.Constraint("Diameter", 0, Q("2.013 mm")))
sketch3.addConstraint(Sketcher.Constraint("DistanceX", -1, 1, 4, 3, Q("86 mm")))
sketch3.addConstraint(Sketcher.Constraint("DistanceY", -1, 1, 4, 3, Q("39 mm")))
sketch3.addConstraint(Sketcher.Constraint("DistanceY", 12, 3, 1, 3, Q("8 mm")))
sketch3.addConstraint(Sketcher.Constraint("DistanceY", 13, 3, 2, 3, Q("8 mm")))
sketch3.addConstraint(Sketcher.Constraint("DistanceY", 1, 3, 0, 3, Q("13.7 mm")))
sketch3.addConstraint(Sketcher.Constraint("DistanceX", 8, 3, 1, 3, Q("145.9 mm")))
sketch3.addConstraint(Sketcher.Constraint("DistanceY", -1, 1, 5, 3, Q("16.25 mm")))
sketch3.addConstraint(Sketcher.Constraint("DistanceX", 10, 3, 3, 3, Q("78.25 mm")))
sketch3.addConstraint(Sketcher.Constraint("DistanceY", 8, 3, 17, 3, Q("2.85 mm")))
sketch3.addConstraint(Sketcher.Constraint("DistanceY", -1, 1, 0, 3, Q("34.475 mm")))
sketch3.addConstraint(Sketcher.Constraint("DistanceY", 2, 3, 3, 3, Q("13.575 mm")))
sketch3.addConstraint(Sketcher.Constraint("DistanceY", -1, 1, 2, 3, Q("20.8375 mm")))
sketch3.addConstraint(Sketcher.Constraint("DistanceX", -1, 1, 16, 3, Q("56.0375 mm")))
sketch3.addConstraint(Sketcher.Constraint("DistanceY", -1, 1, 16, 3, Q("23.5937 mm")))
sketch3.addConstraint(Sketcher.Constraint("DistanceX", 17, 3, -1, 1, Q("56.0375 mm")))
doc.recompute()
hole2 = body.newObject("PartDesign::Hole", "Hole001")
hole2.Profile = sketch3
hole2.ThreadType = "None"
hole2.Diameter = 2.013
hole2.DepthType = "ThroughAll"
hole2.Reversed = True

sketch4 = body.newObject("Sketcher::SketchObject", "Sketch003")
sketch4.AttachmentSupport = (doc.getObject("XZ_Plane"), [""])
sketch4.MapMode = "FlatFace"
sketch4.addGeometry(Part.Circle(V(-83.4, -7.8889, 0), V(0, 0, 1), 1.8), False)
sketch4.addGeometry(Part.Circle(V(83.4, -10.7889, 0), V(0, 0, 1), 1.8), False)
sketch4.addGeometry(Part.Circle(V(64.5, -77, 0), V(0, 0, 1), 1.8), False)
sketch4.addGeometry(Part.Circle(V(21.5, -77, 0), V(0, 0, 1), 1.8), False)
sketch4.addGeometry(Part.Circle(V(-21.5, -77, 0), V(0, 0, 1), 1.8), False)
sketch4.addGeometry(Part.Circle(V(-64.5, -77, 0), V(0, 0, 1), 1.8), False)
sketch4.addConstraint(Sketcher.Constraint("Equal", 0, 1))
sketch4.addConstraint(Sketcher.Constraint("Equal", 1, 2))
sketch4.addConstraint(Sketcher.Constraint("Equal", 2, 3))
sketch4.addConstraint(Sketcher.Constraint("Equal", 3, 4))
sketch4.addConstraint(Sketcher.Constraint("Equal", 4, 5))
sketch4.addConstraint(Sketcher.Constraint("Symmetric", 3, 3, 4, 3, -2))
sketch4.addConstraint(Sketcher.Constraint("Symmetric", 2, 3, 5, 3, -2))
sketch4.addConstraint(Sketcher.Constraint("Horizontal", 2, 3, 3, 3))
sketch4.addConstraint(Sketcher.Constraint("Diameter", 0, Q("3.6 mm")))
sketch4.addConstraint(Sketcher.Constraint("DistanceY", 2, 3, -1, 1, Q("77 mm")))
sketch4.addConstraint(Sketcher.Constraint("DistanceX", 3, 3, 2, 3, Q("43 mm")))
sketch4.addConstraint(Sketcher.Constraint("DistanceX", 4, 3, 3, 3, Q("43 mm")))
sketch4.addConstraint(Sketcher.Constraint("DistanceX", 0, 3, -1, 1, Q("83.4 mm")))
sketch4.addConstraint(Sketcher.Constraint("DistanceX", -1, 1, 1, 3, Q("83.4 mm")))
sketch4.addConstraint(Sketcher.Constraint("DistanceY", 1, 3, 0, 3, Q("2.9 mm")))
sketch4.addConstraint(Sketcher.Constraint("DistanceY", 0, 3, -1, 1, Q("7.889 mm")))
doc.recompute()
hole3 = body.newObject("PartDesign::Hole", "Hole002")
hole3.Profile = sketch4
hole3.ThreadType = "None"
hole3.Diameter = 3.6
hole3.DepthType = "ThroughAll"
hole3.HoleCutType = "Countersink"
hole3.HoleCutDiameter = 6.6
hole3.HoleCutCountersinkAngle = 90

doc.recompute()
